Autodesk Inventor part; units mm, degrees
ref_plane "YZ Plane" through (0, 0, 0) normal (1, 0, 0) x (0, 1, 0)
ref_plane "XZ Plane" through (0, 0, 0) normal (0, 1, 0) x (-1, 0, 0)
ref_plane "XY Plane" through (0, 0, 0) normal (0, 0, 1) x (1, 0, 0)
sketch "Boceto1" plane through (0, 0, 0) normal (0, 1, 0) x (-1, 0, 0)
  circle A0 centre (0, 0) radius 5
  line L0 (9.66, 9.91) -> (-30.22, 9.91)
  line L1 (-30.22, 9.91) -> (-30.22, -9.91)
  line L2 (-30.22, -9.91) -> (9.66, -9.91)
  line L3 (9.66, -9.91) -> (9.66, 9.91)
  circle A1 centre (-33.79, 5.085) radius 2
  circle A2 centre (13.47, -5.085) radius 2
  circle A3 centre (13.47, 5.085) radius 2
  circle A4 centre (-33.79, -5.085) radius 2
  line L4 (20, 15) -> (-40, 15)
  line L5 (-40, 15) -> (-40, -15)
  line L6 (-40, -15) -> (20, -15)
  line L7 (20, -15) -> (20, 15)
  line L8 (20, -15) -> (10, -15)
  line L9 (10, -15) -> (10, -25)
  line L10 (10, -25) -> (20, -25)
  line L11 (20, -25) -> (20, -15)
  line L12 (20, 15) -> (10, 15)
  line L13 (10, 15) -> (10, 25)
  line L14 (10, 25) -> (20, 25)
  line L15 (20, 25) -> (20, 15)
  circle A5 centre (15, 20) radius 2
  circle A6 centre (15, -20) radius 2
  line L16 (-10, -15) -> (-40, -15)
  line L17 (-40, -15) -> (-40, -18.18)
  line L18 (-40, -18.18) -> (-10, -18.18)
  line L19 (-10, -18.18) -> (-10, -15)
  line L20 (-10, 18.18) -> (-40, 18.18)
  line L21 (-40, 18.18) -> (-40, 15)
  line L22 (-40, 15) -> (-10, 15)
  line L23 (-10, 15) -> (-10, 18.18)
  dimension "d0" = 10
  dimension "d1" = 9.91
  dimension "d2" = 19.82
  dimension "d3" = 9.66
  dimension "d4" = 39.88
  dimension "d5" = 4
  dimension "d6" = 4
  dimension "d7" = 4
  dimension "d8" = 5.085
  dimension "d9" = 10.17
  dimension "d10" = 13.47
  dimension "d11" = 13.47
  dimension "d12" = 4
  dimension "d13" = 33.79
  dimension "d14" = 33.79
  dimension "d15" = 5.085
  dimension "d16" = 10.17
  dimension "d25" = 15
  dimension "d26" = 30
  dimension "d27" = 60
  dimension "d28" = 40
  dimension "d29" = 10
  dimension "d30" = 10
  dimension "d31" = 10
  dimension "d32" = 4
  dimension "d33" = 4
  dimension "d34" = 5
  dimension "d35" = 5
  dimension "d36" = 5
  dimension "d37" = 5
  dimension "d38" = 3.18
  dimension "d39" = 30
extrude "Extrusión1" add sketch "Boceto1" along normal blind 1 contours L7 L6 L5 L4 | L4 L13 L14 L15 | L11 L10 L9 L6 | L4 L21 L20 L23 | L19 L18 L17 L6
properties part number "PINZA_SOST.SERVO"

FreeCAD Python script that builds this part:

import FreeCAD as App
import Part
import Sketcher
from FreeCAD import Vector
Q = App.Units.Quantity

doc = App.newDocument("Part")
params = doc.addObject("Spreadsheet::Sheet", "Params")
for row, (alias, value) in enumerate([
    ("sketch1_diameter", "4 mm"),
    ("sketch1_width", "10 mm"),
    ("sketch1_width2", "30 mm"),
    ("sketch1_width3", "39.88 mm"),
    ("sketch1_height", "3.18 mm"),
    ("pad1_length", "1 mm"),
], start=1):
    params.set(f"A{row}", alias)
    params.set(f"B{row}", "=" + value)
    params.setAlias(f"B{row}", alias)

body = doc.addObject("PartDesign::Body", "Body")

sketch1 = body.newObject("Sketcher::SketchObject", "Sketch")
sketch1.AttachmentSupport = (doc.getObject("XZ_Plane"), [""])
sketch1.MapMode = "FlatFace"
sketch1.addGeometry([
    Part.LineSegment(Vector(-20, 25, 0), Vector(-10, 25, 0)),
    Part.LineSegment(Vector(-10, 25, 0), Vector(-10, 15, 0)),
    Part.LineSegment(Vector(-10, 15, 0), Vector(10, 15, 0)),
    Part.LineSegment(Vector(10, 15, 0), Vector(10, 18.18, 0)),
    Part.LineSegment(Vector(10, 18.18, 0), Vector(40, 18.18, 0)),
    Part.LineSegment(Vector(40, 18.18, 0), Vector(40, -18.18, 0)),
    Part.LineSegment(Vector(40, -18.18, 0), Vector(10, -18.18, 0)),
    Part.LineSegment(Vector(10, -18.18, 0), Vector(10, -15, 0)),
    Part.LineSegment(Vector(10, -15, 0), Vector(-10, -15, 0)),
    Part.LineSegment(Vector(-10, -15, 0), Vector(-10, -25, 0)),
    Part.LineSegment(Vector(-10, -25, 0), Vector(-20, -25, 0)),
    Part.LineSegment(Vector(-20, -25, 0), Vector(-20, 25, 0)),
    Part.Circle(Vector(33.79, -5.085, 0), Vector(0, 0, 1), 2),
    Part.Circle(Vector(-13.47, -5.085, 0), Vector(0, 0, 1), 2),
    Part.Circle(Vector(33.79, 5.085, 0), Vector(0, 0, 1), 2),
    Part.LineSegment(Vector(30.22, 9.91, 0), Vector(-9.66, 9.91, 0)),
    Part.LineSegment(Vector(-9.66, 9.91, 0), Vector(-9.66, -9.91, 0)),
    Part.LineSegment(Vector(-9.66, -9.91, 0), Vector(30.22, -9.91, 0)),
    Part.LineSegment(Vector(30.22, -9.91, 0), Vector(30.22, 9.91, 0)),
    Part.Circle(Vector(-13.47, 5.085, 0), Vector(0, 0, 1), 2),
    Part.Circle(Vector(-15, -20, 0), Vector(0, 0, 1), 2),
    Part.Circle(Vector(-15, 20, 0), Vector(0, 0, 1), 2),
], False)
sketch1.addConstraint([
    Sketcher.Constraint("Coincident", 0, 2, 1, 1),
    Sketcher.Constraint("Coincident", 1, 2, 2, 1),
    Sketcher.Constraint("Coincident", 2, 2, 3, 1),
    Sketcher.Constraint("Coincident", 3, 2, 4, 1),
    Sketcher.Constraint("Coincident", 4, 2, 5, 1),
    Sketcher.Constraint("Coincident", 5, 2, 6, 1),
    Sketcher.Constraint("Coincident", 6, 2, 7, 1),
    Sketcher.Constraint("Coincident", 7, 2, 8, 1),
    Sketcher.Constraint("Coincident", 8, 2, 9, 1),
    Sketcher.Constraint("Coincident", 9, 2, 10, 1),
    Sketcher.Constraint("Coincident", 10, 2, 11, 1),
    Sketcher.Constraint("Coincident", 11, 2, 0, 1),
    Sketcher.Constraint("Coincident", 15, 2, 16, 1),
    Sketcher.Constraint("Coincident", 16, 2, 17, 1),
    Sketcher.Constraint("Coincident", 17, 2, 18, 1),
    Sketcher.Constraint("Coincident", 18, 2, 15, 1),
    Sketcher.Constraint("Horizontal", 0),
    Sketcher.Constraint("Vertical", 1),
    Sketcher.Constraint("Horizontal", 2),
    Sketcher.Constraint("Vertical", 3),
    Sketcher.Constraint("Horizontal", 4),
    Sketcher.Constraint("Vertical", 5),
    Sketcher.Constraint("Horizontal", 6),
    Sketcher.Constraint("Vertical", 7),
    Sketcher.Constraint("Horizontal", 8),
    Sketcher.Constraint("Vertical", 9),
    Sketcher.Constraint("Horizontal", 10),
    Sketcher.Constraint("Vertical", 11),
    Sketcher.Constraint("Horizontal", 15),
    Sketcher.Constraint("Vertical", 16),
    Sketcher.Constraint("Horizontal", 17),
    Sketcher.Constraint("Vertical", 18),
    Sketcher.Constraint("Equal", 12, 13),
    Sketcher.Constraint("Equal", 13, 14),
    Sketcher.Constraint("Equal", 14, 19),
    Sketcher.Constraint("Equal", 19, 20),
    Sketcher.Constraint("Equal", 20, 21),
    Sketcher.Constraint("Symmetric", 1, 2, 7, 2, -1, 1),
    Sketcher.Constraint("Symmetric", 12, 3, 14, 3, -1),
    Sketcher.Constraint("Symmetric", 13, 3, 19, 3, -1),
    Sketcher.Constraint("Symmetric", 20, 3, 21, 3, -1),
    Sketcher.Constraint("Symmetric", 3, 2, 6, 2, -1),
    Sketcher.Constraint("Symmetric", 0, 2, 9, 2, -1),
    Sketcher.Constraint("Horizontal", 12, 3, 13, 3),
    Sketcher.Constraint("Equal", 10, 1),
    Sketcher.Constraint("Diameter", 12, Q("4 mm")),
    Sketcher.Constraint("DistanceX", 0, 1, 0, 2, Q("10 mm")),
    Sketcher.Constraint("DistanceX", 4, 1, 4, 2, Q("30 mm")),
    Sketcher.Constraint("DistanceX", 20, 3, -1, 1, Q("15 mm")),
    Sketcher.Constraint("DistanceX", 0, 2, -1, 1, Q("10 mm")),
    Sketcher.Constraint("DistanceY", -1, 1, 1, 2, Q("15 mm")),
    Sketcher.Constraint("DistanceY", 20, 3, 21, 3, Q("40 mm")),
    Sketcher.Constraint("DistanceX", 15, 2, 15, 1, Q("39.88 mm")),
    Sketcher.Constraint("DistanceY", 3, 1, 3, 2, Q("3.18 mm")),
    Sketcher.Constraint("DistanceY", 16, 2, 16, 1, Q("19.82 mm")),
    Sketcher.Constraint("DistanceX", -1, 1, 12, 3, Q("33.79 mm")),
    Sketcher.Constraint("DistanceX", 13, 3, -1, 1, Q("13.47 mm")),
    Sketcher.Constraint("DistanceX", 15, 2, -1, 1, Q("9.66 mm")),
    Sketcher.Constraint("DistanceY", -1, 1, 15, 2, Q("9.91 mm")),
    Sketcher.Constraint("DistanceY", 12, 3, 14, 3, Q("10.17 mm")),
])
sketch1.setExpression("Constraints[45]", "Params.sketch1_diameter")
sketch1.setExpression("Constraints[46]", "Params.sketch1_width")
sketch1.setExpression("Constraints[47]", "Params.sketch1_width2")
sketch1.setExpression("Constraints[52]", "Params.sketch1_width3")
sketch1.setExpression("Constraints[53]", "Params.sketch1_height")
pad1 = body.newObject("PartDesign::Pad", "Pad")
pad1.Profile = sketch1
pad1.setExpression("Length", "Params.pad1_length")
pad1.Reversed = True

doc.recompute()
